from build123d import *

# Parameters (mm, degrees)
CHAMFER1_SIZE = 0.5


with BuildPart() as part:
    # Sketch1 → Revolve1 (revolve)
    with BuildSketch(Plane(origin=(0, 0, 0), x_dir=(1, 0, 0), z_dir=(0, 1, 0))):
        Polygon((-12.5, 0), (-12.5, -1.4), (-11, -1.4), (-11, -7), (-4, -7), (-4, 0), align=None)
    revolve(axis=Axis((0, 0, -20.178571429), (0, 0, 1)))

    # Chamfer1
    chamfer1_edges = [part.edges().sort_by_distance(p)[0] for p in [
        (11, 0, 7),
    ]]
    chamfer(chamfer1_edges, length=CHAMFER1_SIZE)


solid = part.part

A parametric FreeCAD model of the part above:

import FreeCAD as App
import Part
import Sketcher


def edges_at(feature, points):
    """Names of the edges that pass closest to the given points."""
    edges = feature.Shape.Edges
    near = lambda p: min(range(len(edges)), key=lambda i: edges[i].distToShape(Part.Vertex(*p))[0])
    return sorted({f"Edge{near(p) + 1}" for p in points})


def add_polygon(sketch, points):
    """Adds a closed chain of lines whose ends are joined by coincident constraints."""
    first, n = sketch.GeometryCount, len(points)
    for a, b in zip(points, points[1:] + points[:1]):
        sketch.addGeometry(Part.LineSegment(App.Vector(*a, 0), App.Vector(*b, 0)), False)
    for i in range(n):
        sketch.addConstraint(Sketcher.Constraint("Coincident", first + i, 2, first + (i + 1) % n, 1))

doc = App.newDocument("Part")
params = doc.addObject("Spreadsheet::Sheet", "Params")
for row, (alias, value) in enumerate([
    ("sketch1_width", "7 mm"),
    ("sketch1_width2", "1.5 mm"),
    ("sketch1_height", "1.4 mm"),
    ("revolution_angle", "360 deg"),
    ("chamfer_size", "0.5 mm"),
], start=1):
    params.set(f"A{row}", alias)
    params.set(f"B{row}", "=" + value)
    params.setAlias(f"B{row}", alias)

body = doc.addObject("PartDesign::Body", "Body")

# Sketch on XZ plane
sketch1 = body.newObject("Sketcher::SketchObject", "Sketch")
sketch1.AttachmentSupport = (doc.getObject("XZ_Plane"), [""])
sketch1.MapMode = "FlatFace"
add_polygon(sketch1, [(-12.5, 0), (-12.5, 1.4), (-11, 1.4), (-11, 7), (-4, 7), (-4, 0)])  # lines 0-5
sketch1.addConstraint([
    Sketcher.Constraint("Vertical", 0),
    Sketcher.Constraint("Horizontal", 1),
    Sketcher.Constraint("Vertical", 2),
    Sketcher.Constraint("Horizontal", 3),
    Sketcher.Constraint("Vertical", 4),
    Sketcher.Constraint("Horizontal", 5),
    Sketcher.Constraint("PointOnObject", 4, 2, -1),
    Sketcher.Constraint("Equal", 3, 4),
    Sketcher.Constraint("DistanceX", 3, 1, 3, 2, 7.0),
    Sketcher.Constraint("DistanceX", 1, 1, 1, 2, 1.5),
    Sketcher.Constraint("DistanceY", 0, 1, 0, 2, 1.4),
    Sketcher.Constraint("DistanceX", 1, 2, -1, 1, 11.0),
])
sketch1.setExpression("Constraints[14]", "Params.sketch1_width")
sketch1.setExpression("Constraints[15]", "Params.sketch1_width2")
sketch1.setExpression("Constraints[16]", "Params.sketch1_height")
revolution = body.newObject("PartDesign::Revolution", "Revolution")
revolution.Profile = sketch1
revolution.ReferenceAxis = (sketch1, ["V_Axis"])
revolution.setExpression("Angle", "Params.revolution_angle")
doc.recompute()

chamfer = body.newObject("PartDesign::Chamfer", "Chamfer")
chamfer.Base = (revolution, edges_at(revolution, [(11, 0, 7)]))
chamfer.setExpression("Size", "Params.chamfer_size")

doc.recompute()
